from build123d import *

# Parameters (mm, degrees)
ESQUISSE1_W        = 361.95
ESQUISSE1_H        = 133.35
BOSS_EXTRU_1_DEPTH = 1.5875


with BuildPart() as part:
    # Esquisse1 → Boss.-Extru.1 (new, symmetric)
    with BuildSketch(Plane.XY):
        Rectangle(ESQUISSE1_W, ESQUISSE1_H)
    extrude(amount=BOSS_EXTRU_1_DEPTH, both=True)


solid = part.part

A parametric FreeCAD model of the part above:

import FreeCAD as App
import Part
import Sketcher
Q = App.Units.Quantity


def add_polygon(sketch, points):
    """Adds a closed chain of lines whose ends are joined by coincident constraints."""
    first, n = sketch.GeometryCount, len(points)
    for a, b in zip(points, points[1:] + points[:1]):
        sketch.addGeometry(Part.LineSegment(App.Vector(*a, 0), App.Vector(*b, 0)), False)
    for i in range(n):
        sketch.addConstraint(Sketcher.Constraint("Coincident", first + i, 2, first + (i + 1) % n, 1))

doc = App.newDocument("Part")
params = doc.addObject("Spreadsheet::Sheet", "Params")
for row, (alias, value) in enumerate([
    ("sketch1_width", "14.25 in"),
    ("sketch1_height", "5.25 in"),
    ("pad1_length", "0.125 in"),
], start=1):
    params.set(f"A{row}", alias)
    params.set(f"B{row}", "=" + value)
    params.setAlias(f"B{row}", alias)

body = doc.addObject("PartDesign::Body", "Body")

sketch1 = body.newObject("Sketcher::SketchObject", "Sketch")
sketch1.AttachmentSupport = (doc.getObject("XY_Plane"), [""])
sketch1.MapMode = "FlatFace"
add_polygon(sketch1, [(-181, 67), (-181, -67), (181, -67), (181, 67)])
sketch1.addConstraint(Sketcher.Constraint("Vertical", 0))
sketch1.addConstraint(Sketcher.Constraint("Horizontal", 1))
sketch1.addConstraint(Sketcher.Constraint("Vertical", 2))
sketch1.addConstraint(Sketcher.Constraint("Horizontal", 3))
sketch1.addConstraint(Sketcher.Constraint("Symmetric", 0, 2, 2, 2, -1, 1))
sketch1.addConstraint(Sketcher.Constraint("DistanceX", 1, 1, 1, 2, Q("14.25 in")))
sketch1.addConstraint(Sketcher.Constraint("DistanceY", 0, 2, 0, 1, Q("5.25 in")))
sketch1.setExpression("Constraints[9]", "Params.sketch1_width")
sketch1.setExpression("Constraints[10]", "Params.sketch1_height")
pad1 = body.newObject("PartDesign::Pad", "Pad")
pad1.Profile = sketch1
pad1.setExpression("Length", "Params.pad1_length")
pad1.Midplane = True

doc.recompute()
